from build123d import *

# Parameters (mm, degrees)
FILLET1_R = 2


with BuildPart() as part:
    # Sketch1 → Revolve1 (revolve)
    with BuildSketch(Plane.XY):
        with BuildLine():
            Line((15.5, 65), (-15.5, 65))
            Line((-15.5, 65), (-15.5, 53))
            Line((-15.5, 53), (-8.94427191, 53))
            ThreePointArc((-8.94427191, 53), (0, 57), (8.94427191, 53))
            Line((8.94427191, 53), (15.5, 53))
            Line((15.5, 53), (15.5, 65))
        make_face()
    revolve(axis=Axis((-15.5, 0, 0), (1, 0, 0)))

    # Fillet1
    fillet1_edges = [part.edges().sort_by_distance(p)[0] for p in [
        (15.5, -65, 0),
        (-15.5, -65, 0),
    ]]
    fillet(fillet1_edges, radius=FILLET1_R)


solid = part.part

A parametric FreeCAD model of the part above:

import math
import FreeCAD as App
import Part
import Sketcher

V = App.Vector


def edges_at(feature, points):
    """Names of the edges that pass closest to the given points."""
    edges = feature.Shape.Edges
    near = lambda p: min(range(len(edges)), key=lambda i: edges[i].distToShape(Part.Vertex(*p))[0])
    return sorted({f"Edge{near(p) + 1}" for p in points})

doc = App.newDocument("Part")
params = doc.addObject("Spreadsheet::Sheet", "Params")
for row, (alias, value) in enumerate([
    ("sketch1_radius", "12 mm"),
    ("sketch1_width", "31 mm"),
    ("sketch1_height", "12 mm"),
    ("revolution_angle", "360 deg"),
    ("fillet_radius", "2 mm"),
], start=1):
    params.set(f"A{row}", alias)
    params.set(f"B{row}", "=" + value)
    params.setAlias(f"B{row}", alias)

body = doc.addObject("PartDesign::Body", "Body")

# Sketch on XY plane
sketch1 = doc.addObject("Sketcher::SketchObject", "Sketch")
body.addObject(sketch1)
sketch1.AttachmentSupport = (doc.XY_Plane, [""])
sketch1.MapMode = "FlatFace"
sketch1.addGeometry([
    Part.LineSegment(V(16, 65, 0), V(-16, 65, 0)),  # 0
    Part.LineSegment(V(-16, 65, 0), V(-16, 53, 0)),  # 1
    Part.LineSegment(V(-16, 53, 0), V(-9, 53, 0)),  # 2
    Part.ArcOfCircle(Part.Circle(V(0, 45, 0), V(0, 0, 1), 12), math.radians(42), math.radians(138)),  # 3
    Part.LineSegment(V(9, 53, 0), V(16, 53, 0)),  # 4
    Part.LineSegment(V(16, 53, 0), V(16, 65, 0)),  # 5
], False)
sketch1.addConstraint([
    Sketcher.Constraint("Coincident", 0, 2, 1, 1),
    Sketcher.Constraint("Coincident", 1, 2, 2, 1),
    Sketcher.Constraint("Coincident", 2, 2, 3, 2),
    Sketcher.Constraint("Coincident", 3, 1, 4, 1),
    Sketcher.Constraint("Coincident", 4, 2, 5, 1),
    Sketcher.Constraint("Coincident", 5, 2, 0, 1),
    Sketcher.Constraint("Horizontal", 0),
    Sketcher.Constraint("Vertical", 1),
    Sketcher.Constraint("Horizontal", 2),
    Sketcher.Constraint("Horizontal", 4),
    Sketcher.Constraint("Vertical", 5),
    Sketcher.Constraint("Symmetric", 2, 2, 3, 1, -2),
    Sketcher.Constraint("Equal", 2, 4),
    Sketcher.Constraint("Radius", 3, 12.0),
    Sketcher.Constraint("DistanceX", 0, 2, 0, 1, 31.0),
    Sketcher.Constraint("DistanceY", 1, 2, 1, 1, 12.0),
    Sketcher.Constraint("DistanceY", -1, 1, 3, 3, 45.0),
    Sketcher.Constraint("DistanceY", -1, 1, 0, 2, 65.0),
])
sketch1.setExpression("Constraints[13]", "Params.sketch1_radius")
sketch1.setExpression("Constraints[14]", "Params.sketch1_width")
sketch1.setExpression("Constraints[15]", "Params.sketch1_height")
revolution = doc.addObject("PartDesign::Revolution", "Revolution")
body.addObject(revolution)
revolution.Profile = sketch1
revolution.ReferenceAxis = (sketch1, ["H_Axis"])
revolution.setExpression("Angle", "Params.revolution_angle")
doc.recompute()

fillet = doc.addObject("PartDesign::Fillet", "Fillet")
body.addObject(fillet)
fillet.Base = (revolution, edges_at(revolution, [(15.5, -65, 0), (-15.5, -65, 0)]))
fillet.setExpression("Radius", "Params.fillet_radius")

doc.recompute()
